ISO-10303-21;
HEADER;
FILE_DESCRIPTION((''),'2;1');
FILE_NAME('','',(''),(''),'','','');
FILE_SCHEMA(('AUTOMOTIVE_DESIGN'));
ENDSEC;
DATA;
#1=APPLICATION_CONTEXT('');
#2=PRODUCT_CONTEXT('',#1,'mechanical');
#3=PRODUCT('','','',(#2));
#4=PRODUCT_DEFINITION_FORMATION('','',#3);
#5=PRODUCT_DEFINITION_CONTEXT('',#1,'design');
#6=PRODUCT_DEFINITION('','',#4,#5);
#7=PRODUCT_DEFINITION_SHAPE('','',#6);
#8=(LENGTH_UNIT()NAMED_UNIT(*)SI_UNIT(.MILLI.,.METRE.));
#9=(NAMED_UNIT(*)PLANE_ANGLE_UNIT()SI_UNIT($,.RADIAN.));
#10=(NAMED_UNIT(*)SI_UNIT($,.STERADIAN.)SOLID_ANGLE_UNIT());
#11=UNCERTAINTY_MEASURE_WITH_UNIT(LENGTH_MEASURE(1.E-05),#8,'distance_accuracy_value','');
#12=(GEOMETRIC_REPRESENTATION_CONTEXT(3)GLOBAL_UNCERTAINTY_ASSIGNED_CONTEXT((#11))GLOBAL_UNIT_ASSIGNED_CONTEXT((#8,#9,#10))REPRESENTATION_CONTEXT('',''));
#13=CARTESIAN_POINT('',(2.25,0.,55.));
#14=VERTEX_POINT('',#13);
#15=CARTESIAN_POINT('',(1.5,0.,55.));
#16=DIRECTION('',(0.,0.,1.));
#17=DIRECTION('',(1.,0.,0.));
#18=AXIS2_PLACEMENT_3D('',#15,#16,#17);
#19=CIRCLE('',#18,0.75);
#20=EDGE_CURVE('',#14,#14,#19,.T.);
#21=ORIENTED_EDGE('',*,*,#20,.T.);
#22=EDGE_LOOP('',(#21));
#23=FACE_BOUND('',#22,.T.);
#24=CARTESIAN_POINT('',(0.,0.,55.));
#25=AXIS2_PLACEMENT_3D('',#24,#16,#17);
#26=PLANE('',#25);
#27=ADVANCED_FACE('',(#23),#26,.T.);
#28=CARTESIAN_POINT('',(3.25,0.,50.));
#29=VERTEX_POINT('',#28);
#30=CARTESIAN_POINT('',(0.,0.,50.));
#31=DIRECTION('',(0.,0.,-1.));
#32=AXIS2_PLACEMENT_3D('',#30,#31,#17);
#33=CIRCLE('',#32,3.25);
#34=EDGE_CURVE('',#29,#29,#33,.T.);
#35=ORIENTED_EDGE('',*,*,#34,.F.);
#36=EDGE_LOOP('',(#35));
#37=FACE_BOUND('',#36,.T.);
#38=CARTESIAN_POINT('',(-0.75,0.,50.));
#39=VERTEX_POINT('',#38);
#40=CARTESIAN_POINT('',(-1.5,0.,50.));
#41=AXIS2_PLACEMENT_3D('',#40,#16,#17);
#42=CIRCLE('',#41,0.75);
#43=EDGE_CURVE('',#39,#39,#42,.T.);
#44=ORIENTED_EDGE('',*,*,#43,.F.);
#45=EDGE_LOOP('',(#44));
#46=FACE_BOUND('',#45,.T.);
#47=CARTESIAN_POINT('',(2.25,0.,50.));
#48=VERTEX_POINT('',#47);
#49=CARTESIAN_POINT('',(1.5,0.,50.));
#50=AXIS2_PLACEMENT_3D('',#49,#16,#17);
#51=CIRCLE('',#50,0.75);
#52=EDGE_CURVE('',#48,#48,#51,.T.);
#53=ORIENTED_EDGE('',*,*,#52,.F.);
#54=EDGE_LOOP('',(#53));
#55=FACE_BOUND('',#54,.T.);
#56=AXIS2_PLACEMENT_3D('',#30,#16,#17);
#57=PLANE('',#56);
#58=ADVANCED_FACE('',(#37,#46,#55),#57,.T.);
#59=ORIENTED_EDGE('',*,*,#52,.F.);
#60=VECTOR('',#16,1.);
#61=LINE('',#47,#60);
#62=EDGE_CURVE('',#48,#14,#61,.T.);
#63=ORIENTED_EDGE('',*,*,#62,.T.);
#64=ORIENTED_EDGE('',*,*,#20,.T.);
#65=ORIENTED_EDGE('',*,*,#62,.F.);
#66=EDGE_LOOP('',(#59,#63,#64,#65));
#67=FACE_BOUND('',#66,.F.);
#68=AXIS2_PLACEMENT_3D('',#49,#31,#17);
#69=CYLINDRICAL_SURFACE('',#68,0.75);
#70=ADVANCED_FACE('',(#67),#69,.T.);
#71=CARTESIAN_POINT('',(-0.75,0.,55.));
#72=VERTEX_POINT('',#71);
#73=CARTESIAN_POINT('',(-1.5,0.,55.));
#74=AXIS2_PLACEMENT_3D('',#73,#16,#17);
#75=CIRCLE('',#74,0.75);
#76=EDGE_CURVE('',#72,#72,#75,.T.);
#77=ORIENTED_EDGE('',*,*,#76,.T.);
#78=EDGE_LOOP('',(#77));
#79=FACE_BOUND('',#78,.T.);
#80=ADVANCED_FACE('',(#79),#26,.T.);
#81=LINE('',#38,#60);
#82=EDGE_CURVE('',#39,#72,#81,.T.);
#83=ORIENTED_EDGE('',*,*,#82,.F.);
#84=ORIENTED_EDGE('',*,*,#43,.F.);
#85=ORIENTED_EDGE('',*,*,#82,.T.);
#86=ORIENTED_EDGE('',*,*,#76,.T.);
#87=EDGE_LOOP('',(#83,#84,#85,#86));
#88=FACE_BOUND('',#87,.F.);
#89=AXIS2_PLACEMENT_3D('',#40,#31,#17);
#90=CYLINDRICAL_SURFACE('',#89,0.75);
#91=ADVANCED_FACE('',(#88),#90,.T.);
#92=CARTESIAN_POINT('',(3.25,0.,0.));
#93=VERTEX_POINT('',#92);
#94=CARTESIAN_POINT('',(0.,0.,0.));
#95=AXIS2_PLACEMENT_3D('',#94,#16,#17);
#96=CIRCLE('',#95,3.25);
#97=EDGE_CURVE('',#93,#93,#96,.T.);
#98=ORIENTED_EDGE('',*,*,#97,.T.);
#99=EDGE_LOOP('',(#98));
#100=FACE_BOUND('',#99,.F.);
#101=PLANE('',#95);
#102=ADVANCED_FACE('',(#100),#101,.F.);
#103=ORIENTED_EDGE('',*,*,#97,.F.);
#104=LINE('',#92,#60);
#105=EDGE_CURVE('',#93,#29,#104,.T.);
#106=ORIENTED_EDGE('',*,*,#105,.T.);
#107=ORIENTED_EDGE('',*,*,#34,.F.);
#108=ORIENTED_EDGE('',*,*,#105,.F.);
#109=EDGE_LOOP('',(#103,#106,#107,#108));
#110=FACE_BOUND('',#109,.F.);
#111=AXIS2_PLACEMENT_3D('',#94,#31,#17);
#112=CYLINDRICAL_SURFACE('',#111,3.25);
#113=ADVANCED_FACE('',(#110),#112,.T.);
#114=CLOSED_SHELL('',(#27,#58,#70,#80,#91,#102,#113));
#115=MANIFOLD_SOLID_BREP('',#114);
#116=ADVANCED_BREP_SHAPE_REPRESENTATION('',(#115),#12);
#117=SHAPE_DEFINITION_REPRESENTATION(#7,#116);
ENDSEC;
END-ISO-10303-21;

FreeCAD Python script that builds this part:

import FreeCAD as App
import Part
import Sketcher
from FreeCAD import Vector
Q = App.Units.Quantity

doc = App.newDocument("Part")
body = doc.addObject("PartDesign::Body", "Body")

sketch1 = body.newObject("Sketcher::SketchObject", "Sketch")
sketch1.AttachmentSupport = (doc.getObject("XY_Plane"), [""])
sketch1.MapMode = "FlatFace"
sketch1.addGeometry(Part.Circle(Vector(0, 0, 0), Vector(0, 0, 1), 3.25), False)
sketch1.addConstraint(Sketcher.Constraint("Coincident", 0, 3, -1, 1))
sketch1.addConstraint(Sketcher.Constraint("Diameter", 0, Q("6.5 mm")))
pad1 = body.newObject("PartDesign::Pad", "Pad")
pad1.Profile = sketch1
pad1.Length = 50

sketch2 = body.newObject("Sketcher::SketchObject", "Sketch001")
sketch2.AttachmentSupport = (doc.getObject("XY_Plane"), [""])
sketch2.MapMode = "FlatFace"
sketch2.AttachmentOffset = App.Placement(Vector(0, 0, 50), App.Rotation())
sketch2.addGeometry(Part.Circle(Vector(-1.5, 0, 0), Vector(0, 0, 1), 0.75), False)
sketch2.addGeometry(Part.Circle(Vector(1.5, 0, 0), Vector(0, 0, 1), 0.75), False)
sketch2.addConstraint(Sketcher.Constraint("Equal", 0, 1))
sketch2.addConstraint(Sketcher.Constraint("Symmetric", 0, 3, 1, 3, -1, 1))
sketch2.addConstraint(Sketcher.Constraint("PointOnObject", 0, 3, -1))
sketch2.addConstraint(Sketcher.Constraint("Diameter", 0, Q("1.5 mm")))
sketch2.addConstraint(Sketcher.Constraint("DistanceX", 0, 3, -1, 1, Q("1.5 mm")))
pad2 = body.newObject("PartDesign::Pad", "Pad001")
pad2.Profile = sketch2
pad2.Length = 5

doc.recompute()
